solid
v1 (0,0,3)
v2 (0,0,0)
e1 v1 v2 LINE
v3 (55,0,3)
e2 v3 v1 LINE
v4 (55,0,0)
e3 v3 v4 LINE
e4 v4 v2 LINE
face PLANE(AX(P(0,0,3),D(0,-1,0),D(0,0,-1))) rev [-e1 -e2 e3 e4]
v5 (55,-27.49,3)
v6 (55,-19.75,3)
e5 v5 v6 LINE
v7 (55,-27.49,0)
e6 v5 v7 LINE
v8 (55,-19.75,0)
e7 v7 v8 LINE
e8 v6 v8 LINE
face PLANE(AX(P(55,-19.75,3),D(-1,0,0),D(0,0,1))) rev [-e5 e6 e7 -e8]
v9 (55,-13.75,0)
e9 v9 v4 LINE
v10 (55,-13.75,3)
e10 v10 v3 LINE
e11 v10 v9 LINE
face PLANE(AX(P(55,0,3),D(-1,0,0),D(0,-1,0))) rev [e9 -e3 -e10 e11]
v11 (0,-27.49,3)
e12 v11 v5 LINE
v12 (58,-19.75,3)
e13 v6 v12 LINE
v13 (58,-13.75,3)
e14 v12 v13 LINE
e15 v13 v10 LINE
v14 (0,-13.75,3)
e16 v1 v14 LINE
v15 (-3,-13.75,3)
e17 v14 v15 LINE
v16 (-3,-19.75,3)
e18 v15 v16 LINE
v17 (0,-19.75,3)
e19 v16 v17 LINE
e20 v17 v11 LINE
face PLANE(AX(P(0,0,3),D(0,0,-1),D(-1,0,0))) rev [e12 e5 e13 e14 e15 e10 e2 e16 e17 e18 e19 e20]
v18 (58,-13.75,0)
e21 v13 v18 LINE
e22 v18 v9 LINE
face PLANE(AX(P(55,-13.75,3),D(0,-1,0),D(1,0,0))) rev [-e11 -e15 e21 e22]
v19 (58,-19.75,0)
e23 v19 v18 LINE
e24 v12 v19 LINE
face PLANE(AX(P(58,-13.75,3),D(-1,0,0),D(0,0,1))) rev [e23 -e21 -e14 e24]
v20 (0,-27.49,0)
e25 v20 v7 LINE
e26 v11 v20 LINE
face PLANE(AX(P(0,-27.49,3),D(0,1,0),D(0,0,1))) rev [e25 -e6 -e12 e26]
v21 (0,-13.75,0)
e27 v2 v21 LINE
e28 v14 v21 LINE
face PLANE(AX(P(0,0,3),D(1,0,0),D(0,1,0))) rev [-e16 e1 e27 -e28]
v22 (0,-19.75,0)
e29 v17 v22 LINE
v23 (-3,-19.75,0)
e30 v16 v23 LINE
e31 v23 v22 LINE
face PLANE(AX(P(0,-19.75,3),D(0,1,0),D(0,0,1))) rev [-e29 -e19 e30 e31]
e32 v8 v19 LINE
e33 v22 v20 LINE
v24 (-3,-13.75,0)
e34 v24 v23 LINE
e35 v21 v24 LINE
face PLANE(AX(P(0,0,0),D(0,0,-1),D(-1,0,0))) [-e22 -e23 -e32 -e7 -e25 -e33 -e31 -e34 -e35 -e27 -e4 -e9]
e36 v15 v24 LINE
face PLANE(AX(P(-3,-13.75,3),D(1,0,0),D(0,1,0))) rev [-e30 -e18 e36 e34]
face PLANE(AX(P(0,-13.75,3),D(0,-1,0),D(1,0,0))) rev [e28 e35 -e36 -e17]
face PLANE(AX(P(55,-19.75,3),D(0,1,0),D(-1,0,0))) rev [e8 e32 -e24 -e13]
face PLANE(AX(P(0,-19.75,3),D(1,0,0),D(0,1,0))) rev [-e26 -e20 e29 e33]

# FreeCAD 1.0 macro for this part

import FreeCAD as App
import Part
import Sketcher

doc = App.newDocument("Part")
body = doc.addObject("PartDesign::Body", "Body")

# Sketch on XY plane
sketch1 = body.newObject("Sketcher::SketchObject", "Sketch")
sketch1.AttachmentSupport = (doc.getObject("XY_Plane"), [""])
sketch1.MapMode = "FlatFace"
sketch1.addGeometry(Part.LineSegment(App.Vector(55, -27.5, 0), App.Vector(55, -19.8, 0)), False)
sketch1.addGeometry(Part.LineSegment(App.Vector(55, -19.8, 0), App.Vector(58, -19.8, 0)), False)
sketch1.addGeometry(Part.LineSegment(App.Vector(58, -19.8, 0), App.Vector(58, -13.8, 0)), False)
sketch1.addGeometry(Part.LineSegment(App.Vector(58, -13.8, 0), App.Vector(55, -13.8, 0)), False)
sketch1.addGeometry(Part.LineSegment(App.Vector(55, -13.8, 0), App.Vector(55, 0, 0)), False)
sketch1.addGeometry(Part.LineSegment(App.Vector(55, 0, 0), App.Vector(0, 0, 0)), False)
sketch1.addGeometry(Part.LineSegment(App.Vector(0, 0, 0), App.Vector(0, -13.8, 0)), False)
sketch1.addGeometry(Part.LineSegment(App.Vector(0, -13.8, 0), App.Vector(-3, -13.8, 0)), False)
sketch1.addGeometry(Part.LineSegment(App.Vector(-3, -13.8, 0), App.Vector(-3, -19.8, 0)), False)
sketch1.addGeometry(Part.LineSegment(App.Vector(-3, -19.8, 0), App.Vector(0, -19.8, 0)), False)
sketch1.addGeometry(Part.LineSegment(App.Vector(0, -19.8, 0), App.Vector(0, -27.5, 0)), False)
sketch1.addGeometry(Part.LineSegment(App.Vector(0, -27.5, 0), App.Vector(55, -27.5, 0)), False)
sketch1.addConstraint(Sketcher.Constraint("Coincident", 0, 2, 1, 1))
sketch1.addConstraint(Sketcher.Constraint("Coincident", 1, 2, 2, 1))
sketch1.addConstraint(Sketcher.Constraint("Coincident", 2, 2, 3, 1))
sketch1.addConstraint(Sketcher.Constraint("Coincident", 3, 2, 4, 1))
sketch1.addConstraint(Sketcher.Constraint("Coincident", 4, 2, 5, 1))
sketch1.addConstraint(Sketcher.Constraint("Coincident", 5, 2, 6, 1))
sketch1.addConstraint(Sketcher.Constraint("Coincident", 6, 2, 7, 1))
sketch1.addConstraint(Sketcher.Constraint("Coincident", 7, 2, 8, 1))
sketch1.addConstraint(Sketcher.Constraint("Coincident", 8, 2, 9, 1))
sketch1.addConstraint(Sketcher.Constraint("Coincident", 9, 2, 10, 1))
sketch1.addConstraint(Sketcher.Constraint("Coincident", 10, 2, 11, 1))
sketch1.addConstraint(Sketcher.Constraint("Coincident", 11, 2, 0, 1))
sketch1.addConstraint(Sketcher.Constraint("Vertical", 0))
sketch1.addConstraint(Sketcher.Constraint("Horizontal", 1))
sketch1.addConstraint(Sketcher.Constraint("Vertical", 2))
sketch1.addConstraint(Sketcher.Constraint("Horizontal", 3))
sketch1.addConstraint(Sketcher.Constraint("Vertical", 4))
sketch1.addConstraint(Sketcher.Constraint("Horizontal", 5))
sketch1.addConstraint(Sketcher.Constraint("Vertical", 6))
sketch1.addConstraint(Sketcher.Constraint("Horizontal", 7))
sketch1.addConstraint(Sketcher.Constraint("Vertical", 8))
sketch1.addConstraint(Sketcher.Constraint("Horizontal", 9))
sketch1.addConstraint(Sketcher.Constraint("Vertical", 10))
sketch1.addConstraint(Sketcher.Constraint("Horizontal", 11))
sketch1.addConstraint(Sketcher.Constraint("Coincident", 5, 2, -1, 1))
sketch1.addConstraint(Sketcher.Constraint("PointOnObject", 9, 2, -2))
sketch1.addConstraint(Sketcher.Constraint("Horizontal", 3, 2, 6, 2))
sketch1.addConstraint(Sketcher.Constraint("Horizontal", 1, 2, 8, 2))
sketch1.addConstraint(Sketcher.Constraint("Vertical", 0, 2, 3, 2))
sketch1.addConstraint(Sketcher.Constraint("Equal", 3, 7))
sketch1.addConstraint(Sketcher.Constraint("DistanceX", 1, 1, 1, 2, 3.0))
sketch1.addConstraint(Sketcher.Constraint("DistanceX", 5, 2, 5, 1, 55.0))
sketch1.addConstraint(Sketcher.Constraint("DistanceY", 2, 1, 2, 2, 6.0))
sketch1.addConstraint(Sketcher.Constraint("DistanceY", 0, 1, 0, 2, 7.74))
sketch1.addConstraint(Sketcher.Constraint("DistanceY", 4, 1, 4, 2, 13.75))
pad1 = body.newObject("PartDesign::Pad", "Pad")
pad1.Profile = sketch1
pad1.Length = 3

doc.recompute()
